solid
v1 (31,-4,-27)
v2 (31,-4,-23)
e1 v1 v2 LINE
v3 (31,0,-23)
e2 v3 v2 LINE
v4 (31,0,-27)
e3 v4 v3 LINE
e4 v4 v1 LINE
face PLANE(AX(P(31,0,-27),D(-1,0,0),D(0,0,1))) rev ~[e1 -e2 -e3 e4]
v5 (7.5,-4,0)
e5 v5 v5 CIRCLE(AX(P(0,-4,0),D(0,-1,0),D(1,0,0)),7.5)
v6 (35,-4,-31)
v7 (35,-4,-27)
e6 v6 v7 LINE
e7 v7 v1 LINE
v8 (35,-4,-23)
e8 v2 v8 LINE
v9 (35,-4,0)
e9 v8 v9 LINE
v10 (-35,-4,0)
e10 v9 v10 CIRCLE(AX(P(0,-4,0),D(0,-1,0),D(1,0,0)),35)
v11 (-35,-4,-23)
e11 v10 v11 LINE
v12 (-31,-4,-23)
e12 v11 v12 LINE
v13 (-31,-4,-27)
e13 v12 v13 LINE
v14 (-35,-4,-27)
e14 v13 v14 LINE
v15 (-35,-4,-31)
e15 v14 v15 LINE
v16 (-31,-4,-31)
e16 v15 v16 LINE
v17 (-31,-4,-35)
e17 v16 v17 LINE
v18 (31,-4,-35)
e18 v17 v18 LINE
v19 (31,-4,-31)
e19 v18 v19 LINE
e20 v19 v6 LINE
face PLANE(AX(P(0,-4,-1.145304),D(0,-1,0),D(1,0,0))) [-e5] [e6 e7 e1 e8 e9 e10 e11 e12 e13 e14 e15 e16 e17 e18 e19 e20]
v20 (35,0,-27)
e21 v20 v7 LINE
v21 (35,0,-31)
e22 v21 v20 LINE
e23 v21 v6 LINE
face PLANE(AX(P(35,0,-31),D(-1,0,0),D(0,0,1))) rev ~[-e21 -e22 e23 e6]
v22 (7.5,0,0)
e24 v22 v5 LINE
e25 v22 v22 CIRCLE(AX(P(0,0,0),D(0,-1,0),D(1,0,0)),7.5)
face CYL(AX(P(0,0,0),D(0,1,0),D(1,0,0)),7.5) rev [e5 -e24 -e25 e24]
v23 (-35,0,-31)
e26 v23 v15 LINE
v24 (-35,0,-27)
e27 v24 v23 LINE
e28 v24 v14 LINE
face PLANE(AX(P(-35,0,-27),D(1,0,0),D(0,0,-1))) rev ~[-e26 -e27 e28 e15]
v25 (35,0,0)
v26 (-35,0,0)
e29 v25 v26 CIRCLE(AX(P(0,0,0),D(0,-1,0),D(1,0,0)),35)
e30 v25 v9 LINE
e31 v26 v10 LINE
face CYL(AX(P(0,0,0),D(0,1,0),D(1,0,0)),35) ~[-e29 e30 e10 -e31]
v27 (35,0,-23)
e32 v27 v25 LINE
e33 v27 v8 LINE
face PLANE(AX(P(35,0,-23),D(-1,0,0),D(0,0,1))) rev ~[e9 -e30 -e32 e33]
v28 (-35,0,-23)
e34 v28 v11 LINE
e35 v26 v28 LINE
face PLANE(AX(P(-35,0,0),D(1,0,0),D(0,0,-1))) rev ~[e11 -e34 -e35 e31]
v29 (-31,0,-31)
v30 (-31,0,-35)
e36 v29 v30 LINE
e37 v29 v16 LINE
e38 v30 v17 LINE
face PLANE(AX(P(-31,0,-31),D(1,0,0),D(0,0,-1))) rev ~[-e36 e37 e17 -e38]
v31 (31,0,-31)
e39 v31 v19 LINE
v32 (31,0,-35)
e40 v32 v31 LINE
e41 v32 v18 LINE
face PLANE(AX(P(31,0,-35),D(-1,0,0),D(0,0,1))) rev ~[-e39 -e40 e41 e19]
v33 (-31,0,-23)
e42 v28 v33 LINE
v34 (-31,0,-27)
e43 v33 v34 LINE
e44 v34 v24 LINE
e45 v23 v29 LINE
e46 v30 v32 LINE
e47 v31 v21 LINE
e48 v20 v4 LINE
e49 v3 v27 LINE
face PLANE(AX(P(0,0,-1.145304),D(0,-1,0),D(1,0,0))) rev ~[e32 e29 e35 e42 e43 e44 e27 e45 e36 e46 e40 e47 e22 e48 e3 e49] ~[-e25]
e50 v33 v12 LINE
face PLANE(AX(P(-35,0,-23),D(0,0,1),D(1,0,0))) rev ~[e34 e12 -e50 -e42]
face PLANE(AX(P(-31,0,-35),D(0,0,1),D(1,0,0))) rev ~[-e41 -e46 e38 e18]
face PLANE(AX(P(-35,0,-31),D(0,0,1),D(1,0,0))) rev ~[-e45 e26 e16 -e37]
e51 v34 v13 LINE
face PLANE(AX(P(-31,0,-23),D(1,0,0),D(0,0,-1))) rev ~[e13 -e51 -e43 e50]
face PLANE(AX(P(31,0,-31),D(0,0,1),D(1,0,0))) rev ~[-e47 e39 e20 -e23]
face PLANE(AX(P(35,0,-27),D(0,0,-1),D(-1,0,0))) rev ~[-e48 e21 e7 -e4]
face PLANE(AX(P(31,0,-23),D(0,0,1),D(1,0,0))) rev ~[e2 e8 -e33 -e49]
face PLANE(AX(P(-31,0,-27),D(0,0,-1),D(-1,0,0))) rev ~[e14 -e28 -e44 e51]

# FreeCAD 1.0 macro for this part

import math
import FreeCAD as App
import Part
import Sketcher

V = App.Vector

doc = App.newDocument("Part")
body = doc.addObject("PartDesign::Body", "Body")

# Sketch on XZ plane
sketch1 = body.newObject("Sketcher::SketchObject", "Sketch")
sketch1.AttachmentSupport = (doc.getObject("XZ_Plane"), [""])
sketch1.MapMode = "FlatFace"
sketch1.addGeometry([
    Part.ArcOfCircle(Part.Circle(V(0, 0, 0), V(0, 0, 1), 35), math.radians(0), math.radians(180)),  # 0
    Part.LineSegment(V(-35, 0, 0), V(-35, -23, 0)),  # 1
    Part.LineSegment(V(-35, -23, 0), V(-31, -23, 0)),  # 2
    Part.LineSegment(V(-31, -23, 0), V(-31, -27, 0)),  # 3
    Part.LineSegment(V(-31, -27, 0), V(-35, -27, 0)),  # 4
    Part.LineSegment(V(-35, -27, 0), V(-35, -31, 0)),  # 5
    Part.LineSegment(V(-35, -31, 0), V(-31, -31, 0)),  # 6
    Part.LineSegment(V(-31, -31, 0), V(-31, -35, 0)),  # 7
    Part.LineSegment(V(-31, -35, 0), V(31, -35, 0)),  # 8
    Part.LineSegment(V(31, -35, 0), V(31, -31, 0)),  # 9
    Part.LineSegment(V(31, -31, 0), V(35, -31, 0)),  # 10
    Part.LineSegment(V(35, -31, 0), V(35, -27, 0)),  # 11
    Part.LineSegment(V(35, -27, 0), V(31, -27, 0)),  # 12
    Part.LineSegment(V(31, -27, 0), V(31, -23, 0)),  # 13
    Part.LineSegment(V(31, -23, 0), V(35, -23, 0)),  # 14
    Part.LineSegment(V(35, -23, 0), V(35, 0, 0)),  # 15
    Part.Circle(V(0, 0, 0), V(0, 0, 1), 7.5),  # 16
], False)
sketch1.addConstraint([
    Sketcher.Constraint("Tangent", 0, 2, 1, 1),
    Sketcher.Constraint("Coincident", 1, 2, 2, 1),
    Sketcher.Constraint("Coincident", 2, 2, 3, 1),
    Sketcher.Constraint("Coincident", 3, 2, 4, 1),
    Sketcher.Constraint("Coincident", 4, 2, 5, 1),
    Sketcher.Constraint("Coincident", 5, 2, 6, 1),
    Sketcher.Constraint("Coincident", 6, 2, 7, 1),
    Sketcher.Constraint("Coincident", 7, 2, 8, 1),
    Sketcher.Constraint("Coincident", 8, 2, 9, 1),
    Sketcher.Constraint("Coincident", 9, 2, 10, 1),
    Sketcher.Constraint("Coincident", 10, 2, 11, 1),
    Sketcher.Constraint("Coincident", 11, 2, 12, 1),
    Sketcher.Constraint("Coincident", 12, 2, 13, 1),
    Sketcher.Constraint("Coincident", 13, 2, 14, 1),
    Sketcher.Constraint("Coincident", 14, 2, 15, 1),
    Sketcher.Constraint("Tangent", 15, 2, 0, 1),
    Sketcher.Constraint("Vertical", 1),
    Sketcher.Constraint("Horizontal", 2),
    Sketcher.Constraint("Vertical", 3),
    Sketcher.Constraint("Horizontal", 4),
    Sketcher.Constraint("Vertical", 5),
    Sketcher.Constraint("Horizontal", 6),
    Sketcher.Constraint("Vertical", 7),
    Sketcher.Constraint("Horizontal", 8),
    Sketcher.Constraint("Vertical", 9),
    Sketcher.Constraint("Horizontal", 10),
    Sketcher.Constraint("Vertical", 11),
    Sketcher.Constraint("Horizontal", 12),
    Sketcher.Constraint("Vertical", 13),
    Sketcher.Constraint("Horizontal", 14),
    Sketcher.Constraint("Vertical", 15),
    Sketcher.Constraint("Coincident", 0, 3, -1, 1),
    Sketcher.Constraint("Coincident", 16, 3, -1, 1),
    Sketcher.Constraint("Symmetric", 6, 2, 9, 2, -2),
    Sketcher.Constraint("Symmetric", 4, 2, 11, 2, -2),
    Sketcher.Constraint("Symmetric", 2, 2, 13, 2, -2),
    Sketcher.Constraint("Vertical", 1, 2, 4, 2),
    Sketcher.Constraint("Vertical", 3, 2, 6, 2),
    Sketcher.Constraint("Equal", 14, 3),
    Sketcher.Constraint("Equal", 3, 5),
    Sketcher.Constraint("Equal", 5, 7),
    Sketcher.Constraint("Diameter", 16, 15.0),
    Sketcher.Constraint("Radius", 0, 35.0),
    Sketcher.Constraint("DistanceX", 2, 1, 2, 2, 4.0),
    Sketcher.Constraint("DistanceY", 1, 2, 1, 1, 23.0),
])
pad1 = body.newObject("PartDesign::Pad", "Pad")
pad1.Profile = sketch1
pad1.Length = 4

doc.recompute()
